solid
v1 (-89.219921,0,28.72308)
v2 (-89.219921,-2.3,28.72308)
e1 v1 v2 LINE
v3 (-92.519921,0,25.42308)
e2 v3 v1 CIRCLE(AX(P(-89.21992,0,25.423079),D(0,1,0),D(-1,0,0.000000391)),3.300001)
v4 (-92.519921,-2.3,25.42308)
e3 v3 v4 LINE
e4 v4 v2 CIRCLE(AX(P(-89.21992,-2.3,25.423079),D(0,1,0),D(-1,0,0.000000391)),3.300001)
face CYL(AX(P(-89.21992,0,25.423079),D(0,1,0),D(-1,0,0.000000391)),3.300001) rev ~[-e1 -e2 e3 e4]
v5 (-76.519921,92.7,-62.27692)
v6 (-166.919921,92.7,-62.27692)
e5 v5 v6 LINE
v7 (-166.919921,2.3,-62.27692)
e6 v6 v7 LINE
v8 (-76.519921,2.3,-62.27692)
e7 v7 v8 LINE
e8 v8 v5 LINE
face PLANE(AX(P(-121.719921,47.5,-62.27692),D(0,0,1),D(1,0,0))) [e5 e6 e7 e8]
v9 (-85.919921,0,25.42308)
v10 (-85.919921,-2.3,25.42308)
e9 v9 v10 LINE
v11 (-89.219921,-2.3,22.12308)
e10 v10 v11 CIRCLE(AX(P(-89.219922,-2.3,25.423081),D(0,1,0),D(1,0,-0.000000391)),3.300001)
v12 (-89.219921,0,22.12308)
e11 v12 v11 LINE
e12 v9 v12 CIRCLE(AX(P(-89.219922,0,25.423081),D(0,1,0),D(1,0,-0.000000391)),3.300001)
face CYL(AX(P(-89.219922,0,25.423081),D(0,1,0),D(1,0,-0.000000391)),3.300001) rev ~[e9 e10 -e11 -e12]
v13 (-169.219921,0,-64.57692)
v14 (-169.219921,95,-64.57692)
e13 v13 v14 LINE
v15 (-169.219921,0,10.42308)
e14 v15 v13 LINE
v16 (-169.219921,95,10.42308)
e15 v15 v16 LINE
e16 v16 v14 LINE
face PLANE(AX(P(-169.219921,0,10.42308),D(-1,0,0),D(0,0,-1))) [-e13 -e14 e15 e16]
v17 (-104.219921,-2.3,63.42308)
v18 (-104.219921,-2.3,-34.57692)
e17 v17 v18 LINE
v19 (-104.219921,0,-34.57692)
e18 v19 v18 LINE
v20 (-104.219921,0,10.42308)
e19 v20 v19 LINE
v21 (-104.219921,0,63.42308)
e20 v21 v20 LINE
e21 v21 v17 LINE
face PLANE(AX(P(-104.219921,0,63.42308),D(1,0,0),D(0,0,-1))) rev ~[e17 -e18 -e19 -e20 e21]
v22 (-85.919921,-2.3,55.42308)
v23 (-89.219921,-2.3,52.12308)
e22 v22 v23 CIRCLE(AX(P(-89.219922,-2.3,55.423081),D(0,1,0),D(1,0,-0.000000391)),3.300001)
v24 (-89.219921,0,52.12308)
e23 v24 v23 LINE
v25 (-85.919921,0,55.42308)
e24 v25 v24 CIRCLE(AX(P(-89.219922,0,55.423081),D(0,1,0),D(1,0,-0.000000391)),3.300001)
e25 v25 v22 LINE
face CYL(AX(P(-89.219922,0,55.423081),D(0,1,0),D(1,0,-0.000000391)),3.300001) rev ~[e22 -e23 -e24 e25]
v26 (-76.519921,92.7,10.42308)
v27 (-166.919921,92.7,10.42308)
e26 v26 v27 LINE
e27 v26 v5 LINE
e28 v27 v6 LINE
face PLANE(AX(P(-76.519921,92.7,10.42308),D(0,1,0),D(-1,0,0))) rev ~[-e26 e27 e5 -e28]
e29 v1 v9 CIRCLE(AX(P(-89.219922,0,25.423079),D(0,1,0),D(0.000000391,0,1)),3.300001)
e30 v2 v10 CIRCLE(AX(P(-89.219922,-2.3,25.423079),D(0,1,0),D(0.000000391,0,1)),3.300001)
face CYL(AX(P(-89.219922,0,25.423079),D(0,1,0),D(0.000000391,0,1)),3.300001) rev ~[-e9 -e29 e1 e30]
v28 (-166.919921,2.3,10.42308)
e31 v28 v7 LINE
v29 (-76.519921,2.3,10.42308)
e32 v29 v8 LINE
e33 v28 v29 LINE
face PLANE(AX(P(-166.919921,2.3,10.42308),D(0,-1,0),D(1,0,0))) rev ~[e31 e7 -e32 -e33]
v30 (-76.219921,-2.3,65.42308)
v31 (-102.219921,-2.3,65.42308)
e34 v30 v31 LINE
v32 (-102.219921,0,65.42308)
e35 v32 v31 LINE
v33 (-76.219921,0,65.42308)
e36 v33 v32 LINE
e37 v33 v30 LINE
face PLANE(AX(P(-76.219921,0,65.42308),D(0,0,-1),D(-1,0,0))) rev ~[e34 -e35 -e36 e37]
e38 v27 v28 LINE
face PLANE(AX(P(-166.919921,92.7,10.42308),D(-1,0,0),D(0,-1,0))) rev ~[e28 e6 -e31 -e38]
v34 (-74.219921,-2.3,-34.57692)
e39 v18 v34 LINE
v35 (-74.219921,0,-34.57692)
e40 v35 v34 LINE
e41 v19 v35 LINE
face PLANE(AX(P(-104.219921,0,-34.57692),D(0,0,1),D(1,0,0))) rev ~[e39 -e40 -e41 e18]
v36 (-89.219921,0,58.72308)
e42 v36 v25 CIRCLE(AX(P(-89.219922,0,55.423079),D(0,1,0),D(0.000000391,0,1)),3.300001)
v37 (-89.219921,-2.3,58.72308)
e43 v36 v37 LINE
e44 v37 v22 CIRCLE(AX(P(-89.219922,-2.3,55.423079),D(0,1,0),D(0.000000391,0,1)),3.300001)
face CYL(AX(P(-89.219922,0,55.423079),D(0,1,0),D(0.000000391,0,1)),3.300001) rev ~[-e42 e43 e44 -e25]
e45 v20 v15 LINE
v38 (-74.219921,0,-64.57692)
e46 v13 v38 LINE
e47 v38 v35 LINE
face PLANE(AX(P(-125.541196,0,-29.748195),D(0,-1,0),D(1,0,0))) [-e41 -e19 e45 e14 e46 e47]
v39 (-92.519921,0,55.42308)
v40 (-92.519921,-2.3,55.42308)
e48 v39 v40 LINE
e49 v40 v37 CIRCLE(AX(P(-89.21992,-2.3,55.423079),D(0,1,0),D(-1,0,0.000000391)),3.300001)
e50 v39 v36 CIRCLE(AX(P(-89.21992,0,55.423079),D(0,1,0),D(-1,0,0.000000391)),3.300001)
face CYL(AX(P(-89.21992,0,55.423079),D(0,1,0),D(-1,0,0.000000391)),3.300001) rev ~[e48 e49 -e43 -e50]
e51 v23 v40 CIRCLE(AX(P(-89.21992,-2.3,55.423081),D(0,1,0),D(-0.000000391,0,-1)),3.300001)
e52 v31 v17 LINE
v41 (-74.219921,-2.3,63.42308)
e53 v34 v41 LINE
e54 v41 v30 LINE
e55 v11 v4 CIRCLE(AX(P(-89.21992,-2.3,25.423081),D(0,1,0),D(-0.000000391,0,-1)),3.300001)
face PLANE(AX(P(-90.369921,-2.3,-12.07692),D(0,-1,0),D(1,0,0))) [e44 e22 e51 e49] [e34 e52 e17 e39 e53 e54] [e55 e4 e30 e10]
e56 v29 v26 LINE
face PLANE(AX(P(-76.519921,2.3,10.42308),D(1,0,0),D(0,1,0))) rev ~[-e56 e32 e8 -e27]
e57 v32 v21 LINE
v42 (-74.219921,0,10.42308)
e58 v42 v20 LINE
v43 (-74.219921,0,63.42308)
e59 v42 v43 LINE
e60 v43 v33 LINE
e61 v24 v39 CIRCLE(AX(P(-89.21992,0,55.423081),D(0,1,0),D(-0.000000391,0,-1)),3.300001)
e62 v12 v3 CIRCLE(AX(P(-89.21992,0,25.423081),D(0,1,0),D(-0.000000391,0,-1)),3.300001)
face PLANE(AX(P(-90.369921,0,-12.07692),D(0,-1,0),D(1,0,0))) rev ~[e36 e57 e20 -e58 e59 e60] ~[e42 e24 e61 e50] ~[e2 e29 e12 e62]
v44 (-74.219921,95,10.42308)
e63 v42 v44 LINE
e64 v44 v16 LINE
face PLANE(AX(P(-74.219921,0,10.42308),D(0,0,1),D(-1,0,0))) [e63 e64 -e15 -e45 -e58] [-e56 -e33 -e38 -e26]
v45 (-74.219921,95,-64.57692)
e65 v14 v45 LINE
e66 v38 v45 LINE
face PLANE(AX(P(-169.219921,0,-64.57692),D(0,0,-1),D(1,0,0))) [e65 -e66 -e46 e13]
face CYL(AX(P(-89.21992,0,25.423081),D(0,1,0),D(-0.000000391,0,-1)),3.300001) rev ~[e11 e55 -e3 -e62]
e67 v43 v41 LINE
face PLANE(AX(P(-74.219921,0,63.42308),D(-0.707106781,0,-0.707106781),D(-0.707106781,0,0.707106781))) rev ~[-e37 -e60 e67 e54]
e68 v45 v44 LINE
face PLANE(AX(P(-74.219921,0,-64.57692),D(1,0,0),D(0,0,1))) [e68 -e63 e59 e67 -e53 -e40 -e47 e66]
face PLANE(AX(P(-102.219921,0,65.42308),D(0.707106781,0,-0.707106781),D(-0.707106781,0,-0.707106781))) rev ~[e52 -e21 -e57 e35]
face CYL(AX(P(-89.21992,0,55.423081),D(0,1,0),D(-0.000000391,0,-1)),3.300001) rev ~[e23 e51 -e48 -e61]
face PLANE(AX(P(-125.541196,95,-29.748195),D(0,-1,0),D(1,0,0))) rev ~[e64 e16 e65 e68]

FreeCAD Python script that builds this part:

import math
import FreeCAD as App
import Part
import Sketcher
Q = App.Units.Quantity

doc = App.newDocument("Part")
params = doc.addObject("Spreadsheet::Sheet", "Params")
for row, (alias, value) in enumerate([
    ("sketch1_radius", "3.300001 mm"),
    ("sketch1_width", "30 mm"),
    ("sketch1_width2", "26 mm"),
    ("sketch1_height", "98 mm"),
    ("pad1_length", "2.3 mm"),
    ("sketch2_width", "95 mm"),
    ("sketch2_height", "75 mm"),
    ("pad2_length", "95 mm"),
    ("sketch3_width", "90.4 mm"),
    ("pocket1_length", "72.7 mm"),
], start=1):
    params.set(f"A{row}", alias)
    params.set(f"B{row}", "=" + value)
    params.setAlias(f"B{row}", alias)

body = doc.addObject("PartDesign::Body", "Body")

# Sketch on XZ plane
sketch1 = body.newObject("Sketcher::SketchObject", "Sketch")
sketch1.AttachmentSupport = (doc.getObject("XZ_Plane"), [""])
sketch1.MapMode = "FlatFace"
sketch1.addGeometry(Part.LineSegment(App.Vector(-104.2, -34.6, 0), App.Vector(-74.2, -34.6, 0)), False)
sketch1.addGeometry(Part.LineSegment(App.Vector(-74.2, -34.6, 0), App.Vector(-74.2, 63.4, 0)), False)
sketch1.addGeometry(Part.LineSegment(App.Vector(-74.2, 63.4, 0), App.Vector(-76.2, 65.4, 0)), False)
sketch1.addGeometry(Part.LineSegment(App.Vector(-76.2, 65.4, 0), App.Vector(-102.2, 65.4, 0)), False)
sketch1.addGeometry(Part.LineSegment(App.Vector(-102.2, 65.4, 0), App.Vector(-104.2, 63.4, 0)), False)
sketch1.addGeometry(Part.LineSegment(App.Vector(-104.2, 63.4, 0), App.Vector(-104.2, -34.6, 0)), False)
sketch1.addGeometry(Part.ArcOfCircle(Part.Circle(App.Vector(-89.2, 25.4, 0), App.Vector(0, 0, 1), 3.3), math.radians(-90), math.radians(0)), False)
sketch1.addGeometry(Part.ArcOfCircle(Part.Circle(App.Vector(-89.2, 25.4, 0), App.Vector(0, 0, 1), 3.3), math.radians(-180), math.radians(-90)), False)
sketch1.addGeometry(Part.ArcOfCircle(Part.Circle(App.Vector(-89.2, 25.4, 0), App.Vector(0, 0, 1), 3.3), math.radians(90), math.radians(180)), False)
sketch1.addGeometry(Part.ArcOfCircle(Part.Circle(App.Vector(-89.2, 25.4, 0), App.Vector(0, 0, 1), 3.3), math.radians(0), math.radians(90)), False)
sketch1.addGeometry(Part.ArcOfCircle(Part.Circle(App.Vector(-89.2, 55.4, 0), App.Vector(0, 0, 1), 3.3), math.radians(-90), math.radians(0)), False)
sketch1.addGeometry(Part.ArcOfCircle(Part.Circle(App.Vector(-89.2, 55.4, 0), App.Vector(0, 0, 1), 3.3), math.radians(-180), math.radians(-90)), False)
sketch1.addGeometry(Part.ArcOfCircle(Part.Circle(App.Vector(-89.2, 55.4, 0), App.Vector(0, 0, 1), 3.3), math.radians(90), math.radians(180)), False)
sketch1.addGeometry(Part.ArcOfCircle(Part.Circle(App.Vector(-89.2, 55.4, 0), App.Vector(0, 0, 1), 3.3), math.radians(0), math.radians(90)), False)
sketch1.addConstraint(Sketcher.Constraint("Coincident", 0, 2, 1, 1))
sketch1.addConstraint(Sketcher.Constraint("Coincident", 1, 2, 2, 1))
sketch1.addConstraint(Sketcher.Constraint("Coincident", 2, 2, 3, 1))
sketch1.addConstraint(Sketcher.Constraint("Coincident", 3, 2, 4, 1))
sketch1.addConstraint(Sketcher.Constraint("Coincident", 4, 2, 5, 1))
sketch1.addConstraint(Sketcher.Constraint("Coincident", 5, 2, 0, 1))
sketch1.addConstraint(Sketcher.Constraint("Tangent", 6, 1, 7, 2))
sketch1.addConstraint(Sketcher.Constraint("Tangent", 7, 1, 8, 2))
sketch1.addConstraint(Sketcher.Constraint("Tangent", 8, 1, 9, 2))
sketch1.addConstraint(Sketcher.Constraint("Tangent", 9, 1, 6, 2))
sketch1.addConstraint(Sketcher.Constraint("Tangent", 10, 1, 11, 2))
sketch1.addConstraint(Sketcher.Constraint("Tangent", 11, 1, 12, 2))
sketch1.addConstraint(Sketcher.Constraint("Tangent", 12, 1, 13, 2))
sketch1.addConstraint(Sketcher.Constraint("Tangent", 13, 1, 10, 2))
sketch1.addConstraint(Sketcher.Constraint("Horizontal", 0))
sketch1.addConstraint(Sketcher.Constraint("Vertical", 1))
sketch1.addConstraint(Sketcher.Constraint("Horizontal", 3))
sketch1.addConstraint(Sketcher.Constraint("Vertical", 5))
sketch1.addConstraint(Sketcher.Constraint("Equal", 6, 7))
sketch1.addConstraint(Sketcher.Constraint("Equal", 9, 10))
sketch1.addConstraint(Sketcher.Constraint("Equal", 10, 11))
sketch1.addConstraint(Sketcher.Constraint("Perpendicular", 2, 4))
sketch1.addConstraint(Sketcher.Constraint("Horizontal", 1, 2, 4, 2))
sketch1.addConstraint(Sketcher.Constraint("Horizontal", 9, 3, 7, 1))
sketch1.addConstraint(Sketcher.Constraint("Horizontal", 7, 1, 9, 1))
sketch1.addConstraint(Sketcher.Constraint("Horizontal", 13, 3, 11, 1))
sketch1.addConstraint(Sketcher.Constraint("Horizontal", 11, 1, 13, 1))
sketch1.addConstraint(Sketcher.Constraint("Vertical", 9, 3, 10, 3))
sketch1.addConstraint(Sketcher.Constraint("Vertical", 13, 3, 6, 1))
sketch1.addConstraint(Sketcher.Constraint("Vertical", 6, 1, 8, 1))
sketch1.addConstraint(Sketcher.Constraint("Vertical", 8, 1, 10, 1))
sketch1.addConstraint(Sketcher.Constraint("Vertical", 10, 1, 12, 1))
sketch1.addConstraint(Sketcher.Constraint("Equal", 2, 4))
sketch1.addConstraint(Sketcher.Constraint("Radius", 6, Q("3.300001 mm")))
sketch1.addConstraint(Sketcher.Constraint("DistanceX", 0, 1, 0, 2, Q("30 mm")))
sketch1.addConstraint(Sketcher.Constraint("DistanceX", 3, 2, 3, 1, Q("26 mm")))
sketch1.addConstraint(Sketcher.Constraint("DistanceY", 1, 1, 1, 2, Q("98 mm")))
sketch1.addConstraint(Sketcher.Constraint("DistanceY", 6, 3, 10, 3, Q("30 mm")))
sketch1.addConstraint(Sketcher.Constraint("DistanceX", 8, 3, 0, 2, Q("14.999999 mm")))
sketch1.addConstraint(Sketcher.Constraint("DistanceY", 0, 2, 8, 3, Q("59.999999 mm")))
sketch1.addConstraint(Sketcher.Constraint("DistanceY", -1, 1, 6, 3, Q("25.423081 mm")))
sketch1.addConstraint(Sketcher.Constraint("DistanceX", 7, 3, -1, 1, Q("89.21992 mm")))
sketch1.setExpression("Constraints[33]", "Params.sketch1_radius")
sketch1.setExpression("Constraints[34]", "Params.sketch1_width")
sketch1.setExpression("Constraints[35]", "Params.sketch1_width2")
sketch1.setExpression("Constraints[36]", "Params.sketch1_height")
pad1 = body.newObject("PartDesign::Pad", "Pad")
pad1.Profile = sketch1
pad1.setExpression("Length", "Params.pad1_length")

# Sketch on XZ plane
sketch2 = body.newObject("Sketcher::SketchObject", "Sketch001")
sketch2.AttachmentSupport = (doc.getObject("XZ_Plane"), [""])
sketch2.MapMode = "FlatFace"
sketch2.addGeometry(Part.LineSegment(App.Vector(-169, 10, 0), App.Vector(-169, -65, 0)), False)
sketch2.addGeometry(Part.LineSegment(App.Vector(-169, -65, 0), App.Vector(-74, -65, 0)), False)
sketch2.addGeometry(Part.LineSegment(App.Vector(-74, -65, 0), App.Vector(-74, 10, 0)), False)
sketch2.addGeometry(Part.LineSegment(App.Vector(-74, 10, 0), App.Vector(-169, 10, 0)), False)
sketch2.addConstraint(Sketcher.Constraint("Coincident", 0, 2, 1, 1))
sketch2.addConstraint(Sketcher.Constraint("Coincident", 1, 2, 2, 1))
sketch2.addConstraint(Sketcher.Constraint("Coincident", 2, 2, 3, 1))
sketch2.addConstraint(Sketcher.Constraint("Coincident", 3, 2, 0, 1))
sketch2.addConstraint(Sketcher.Constraint("Vertical", 0))
sketch2.addConstraint(Sketcher.Constraint("Horizontal", 1))
sketch2.addConstraint(Sketcher.Constraint("Vertical", 2))
sketch2.addConstraint(Sketcher.Constraint("Horizontal", 3))
sketch2.addConstraint(Sketcher.Constraint("DistanceX", 1, 1, 1, 2, Q("95 mm")))
sketch2.addConstraint(Sketcher.Constraint("DistanceY", 0, 2, 0, 1, Q("75 mm")))
sketch2.addConstraint(Sketcher.Constraint("DistanceX", 0, 2, -1, 1, Q("169.219921 mm")))
sketch2.addConstraint(Sketcher.Constraint("DistanceY", 0, 2, -1, 1, Q("64.57692 mm")))
sketch2.setExpression("Constraints[8]", "Params.sketch2_width")
sketch2.setExpression("Constraints[9]", "Params.sketch2_height")
pad2 = body.newObject("PartDesign::Pad", "Pad001")
pad2.Profile = sketch2
pad2.setExpression("Length", "Params.pad2_length")
pad2.Reversed = True

# Sketch on XY plane
sketch3 = body.newObject("Sketcher::SketchObject", "Sketch002")
sketch3.AttachmentSupport = (doc.getObject("XY_Plane"), [""])
sketch3.MapMode = "FlatFace"
sketch3.AttachmentOffset = App.Placement(App.Vector(0, 0, 10.42308), App.Rotation())
sketch3.addGeometry(Part.LineSegment(App.Vector(-77, 2, 0), App.Vector(-77, 93, 0)), False)
sketch3.addGeometry(Part.LineSegment(App.Vector(-77, 93, 0), App.Vector(-167, 93, 0)), False)
sketch3.addGeometry(Part.LineSegment(App.Vector(-167, 93, 0), App.Vector(-167, 2, 0)), False)
sketch3.addGeometry(Part.LineSegment(App.Vector(-167, 2, 0), App.Vector(-77, 2, 0)), False)
sketch3.addConstraint(Sketcher.Constraint("Coincident", 0, 2, 1, 1))
sketch3.addConstraint(Sketcher.Constraint("Coincident", 1, 2, 2, 1))
sketch3.addConstraint(Sketcher.Constraint("Coincident", 2, 2, 3, 1))
sketch3.addConstraint(Sketcher.Constraint("Coincident", 3, 2, 0, 1))
sketch3.addConstraint(Sketcher.Constraint("Vertical", 0))
sketch3.addConstraint(Sketcher.Constraint("Horizontal", 1))
sketch3.addConstraint(Sketcher.Constraint("Vertical", 2))
sketch3.addConstraint(Sketcher.Constraint("Horizontal", 3))
sketch3.addConstraint(Sketcher.Constraint("Equal", 3, 0))
sketch3.addConstraint(Sketcher.Constraint("DistanceX", 1, 2, 1, 1, Q("90.4 mm")))
sketch3.addConstraint(Sketcher.Constraint("DistanceY", -1, 1, 0, 2, Q("92.7 mm")))
sketch3.addConstraint(Sketcher.Constraint("DistanceX", 0, 2, -1, 1, Q("76.519921 mm")))
sketch3.setExpression("Constraints[9]", "Params.sketch3_width")
pocket1 = body.newObject("PartDesign::Pocket", "Pocket")
pocket1.Profile = sketch3
pocket1.setExpression("Length", "Params.pocket1_length")

doc.recompute()
